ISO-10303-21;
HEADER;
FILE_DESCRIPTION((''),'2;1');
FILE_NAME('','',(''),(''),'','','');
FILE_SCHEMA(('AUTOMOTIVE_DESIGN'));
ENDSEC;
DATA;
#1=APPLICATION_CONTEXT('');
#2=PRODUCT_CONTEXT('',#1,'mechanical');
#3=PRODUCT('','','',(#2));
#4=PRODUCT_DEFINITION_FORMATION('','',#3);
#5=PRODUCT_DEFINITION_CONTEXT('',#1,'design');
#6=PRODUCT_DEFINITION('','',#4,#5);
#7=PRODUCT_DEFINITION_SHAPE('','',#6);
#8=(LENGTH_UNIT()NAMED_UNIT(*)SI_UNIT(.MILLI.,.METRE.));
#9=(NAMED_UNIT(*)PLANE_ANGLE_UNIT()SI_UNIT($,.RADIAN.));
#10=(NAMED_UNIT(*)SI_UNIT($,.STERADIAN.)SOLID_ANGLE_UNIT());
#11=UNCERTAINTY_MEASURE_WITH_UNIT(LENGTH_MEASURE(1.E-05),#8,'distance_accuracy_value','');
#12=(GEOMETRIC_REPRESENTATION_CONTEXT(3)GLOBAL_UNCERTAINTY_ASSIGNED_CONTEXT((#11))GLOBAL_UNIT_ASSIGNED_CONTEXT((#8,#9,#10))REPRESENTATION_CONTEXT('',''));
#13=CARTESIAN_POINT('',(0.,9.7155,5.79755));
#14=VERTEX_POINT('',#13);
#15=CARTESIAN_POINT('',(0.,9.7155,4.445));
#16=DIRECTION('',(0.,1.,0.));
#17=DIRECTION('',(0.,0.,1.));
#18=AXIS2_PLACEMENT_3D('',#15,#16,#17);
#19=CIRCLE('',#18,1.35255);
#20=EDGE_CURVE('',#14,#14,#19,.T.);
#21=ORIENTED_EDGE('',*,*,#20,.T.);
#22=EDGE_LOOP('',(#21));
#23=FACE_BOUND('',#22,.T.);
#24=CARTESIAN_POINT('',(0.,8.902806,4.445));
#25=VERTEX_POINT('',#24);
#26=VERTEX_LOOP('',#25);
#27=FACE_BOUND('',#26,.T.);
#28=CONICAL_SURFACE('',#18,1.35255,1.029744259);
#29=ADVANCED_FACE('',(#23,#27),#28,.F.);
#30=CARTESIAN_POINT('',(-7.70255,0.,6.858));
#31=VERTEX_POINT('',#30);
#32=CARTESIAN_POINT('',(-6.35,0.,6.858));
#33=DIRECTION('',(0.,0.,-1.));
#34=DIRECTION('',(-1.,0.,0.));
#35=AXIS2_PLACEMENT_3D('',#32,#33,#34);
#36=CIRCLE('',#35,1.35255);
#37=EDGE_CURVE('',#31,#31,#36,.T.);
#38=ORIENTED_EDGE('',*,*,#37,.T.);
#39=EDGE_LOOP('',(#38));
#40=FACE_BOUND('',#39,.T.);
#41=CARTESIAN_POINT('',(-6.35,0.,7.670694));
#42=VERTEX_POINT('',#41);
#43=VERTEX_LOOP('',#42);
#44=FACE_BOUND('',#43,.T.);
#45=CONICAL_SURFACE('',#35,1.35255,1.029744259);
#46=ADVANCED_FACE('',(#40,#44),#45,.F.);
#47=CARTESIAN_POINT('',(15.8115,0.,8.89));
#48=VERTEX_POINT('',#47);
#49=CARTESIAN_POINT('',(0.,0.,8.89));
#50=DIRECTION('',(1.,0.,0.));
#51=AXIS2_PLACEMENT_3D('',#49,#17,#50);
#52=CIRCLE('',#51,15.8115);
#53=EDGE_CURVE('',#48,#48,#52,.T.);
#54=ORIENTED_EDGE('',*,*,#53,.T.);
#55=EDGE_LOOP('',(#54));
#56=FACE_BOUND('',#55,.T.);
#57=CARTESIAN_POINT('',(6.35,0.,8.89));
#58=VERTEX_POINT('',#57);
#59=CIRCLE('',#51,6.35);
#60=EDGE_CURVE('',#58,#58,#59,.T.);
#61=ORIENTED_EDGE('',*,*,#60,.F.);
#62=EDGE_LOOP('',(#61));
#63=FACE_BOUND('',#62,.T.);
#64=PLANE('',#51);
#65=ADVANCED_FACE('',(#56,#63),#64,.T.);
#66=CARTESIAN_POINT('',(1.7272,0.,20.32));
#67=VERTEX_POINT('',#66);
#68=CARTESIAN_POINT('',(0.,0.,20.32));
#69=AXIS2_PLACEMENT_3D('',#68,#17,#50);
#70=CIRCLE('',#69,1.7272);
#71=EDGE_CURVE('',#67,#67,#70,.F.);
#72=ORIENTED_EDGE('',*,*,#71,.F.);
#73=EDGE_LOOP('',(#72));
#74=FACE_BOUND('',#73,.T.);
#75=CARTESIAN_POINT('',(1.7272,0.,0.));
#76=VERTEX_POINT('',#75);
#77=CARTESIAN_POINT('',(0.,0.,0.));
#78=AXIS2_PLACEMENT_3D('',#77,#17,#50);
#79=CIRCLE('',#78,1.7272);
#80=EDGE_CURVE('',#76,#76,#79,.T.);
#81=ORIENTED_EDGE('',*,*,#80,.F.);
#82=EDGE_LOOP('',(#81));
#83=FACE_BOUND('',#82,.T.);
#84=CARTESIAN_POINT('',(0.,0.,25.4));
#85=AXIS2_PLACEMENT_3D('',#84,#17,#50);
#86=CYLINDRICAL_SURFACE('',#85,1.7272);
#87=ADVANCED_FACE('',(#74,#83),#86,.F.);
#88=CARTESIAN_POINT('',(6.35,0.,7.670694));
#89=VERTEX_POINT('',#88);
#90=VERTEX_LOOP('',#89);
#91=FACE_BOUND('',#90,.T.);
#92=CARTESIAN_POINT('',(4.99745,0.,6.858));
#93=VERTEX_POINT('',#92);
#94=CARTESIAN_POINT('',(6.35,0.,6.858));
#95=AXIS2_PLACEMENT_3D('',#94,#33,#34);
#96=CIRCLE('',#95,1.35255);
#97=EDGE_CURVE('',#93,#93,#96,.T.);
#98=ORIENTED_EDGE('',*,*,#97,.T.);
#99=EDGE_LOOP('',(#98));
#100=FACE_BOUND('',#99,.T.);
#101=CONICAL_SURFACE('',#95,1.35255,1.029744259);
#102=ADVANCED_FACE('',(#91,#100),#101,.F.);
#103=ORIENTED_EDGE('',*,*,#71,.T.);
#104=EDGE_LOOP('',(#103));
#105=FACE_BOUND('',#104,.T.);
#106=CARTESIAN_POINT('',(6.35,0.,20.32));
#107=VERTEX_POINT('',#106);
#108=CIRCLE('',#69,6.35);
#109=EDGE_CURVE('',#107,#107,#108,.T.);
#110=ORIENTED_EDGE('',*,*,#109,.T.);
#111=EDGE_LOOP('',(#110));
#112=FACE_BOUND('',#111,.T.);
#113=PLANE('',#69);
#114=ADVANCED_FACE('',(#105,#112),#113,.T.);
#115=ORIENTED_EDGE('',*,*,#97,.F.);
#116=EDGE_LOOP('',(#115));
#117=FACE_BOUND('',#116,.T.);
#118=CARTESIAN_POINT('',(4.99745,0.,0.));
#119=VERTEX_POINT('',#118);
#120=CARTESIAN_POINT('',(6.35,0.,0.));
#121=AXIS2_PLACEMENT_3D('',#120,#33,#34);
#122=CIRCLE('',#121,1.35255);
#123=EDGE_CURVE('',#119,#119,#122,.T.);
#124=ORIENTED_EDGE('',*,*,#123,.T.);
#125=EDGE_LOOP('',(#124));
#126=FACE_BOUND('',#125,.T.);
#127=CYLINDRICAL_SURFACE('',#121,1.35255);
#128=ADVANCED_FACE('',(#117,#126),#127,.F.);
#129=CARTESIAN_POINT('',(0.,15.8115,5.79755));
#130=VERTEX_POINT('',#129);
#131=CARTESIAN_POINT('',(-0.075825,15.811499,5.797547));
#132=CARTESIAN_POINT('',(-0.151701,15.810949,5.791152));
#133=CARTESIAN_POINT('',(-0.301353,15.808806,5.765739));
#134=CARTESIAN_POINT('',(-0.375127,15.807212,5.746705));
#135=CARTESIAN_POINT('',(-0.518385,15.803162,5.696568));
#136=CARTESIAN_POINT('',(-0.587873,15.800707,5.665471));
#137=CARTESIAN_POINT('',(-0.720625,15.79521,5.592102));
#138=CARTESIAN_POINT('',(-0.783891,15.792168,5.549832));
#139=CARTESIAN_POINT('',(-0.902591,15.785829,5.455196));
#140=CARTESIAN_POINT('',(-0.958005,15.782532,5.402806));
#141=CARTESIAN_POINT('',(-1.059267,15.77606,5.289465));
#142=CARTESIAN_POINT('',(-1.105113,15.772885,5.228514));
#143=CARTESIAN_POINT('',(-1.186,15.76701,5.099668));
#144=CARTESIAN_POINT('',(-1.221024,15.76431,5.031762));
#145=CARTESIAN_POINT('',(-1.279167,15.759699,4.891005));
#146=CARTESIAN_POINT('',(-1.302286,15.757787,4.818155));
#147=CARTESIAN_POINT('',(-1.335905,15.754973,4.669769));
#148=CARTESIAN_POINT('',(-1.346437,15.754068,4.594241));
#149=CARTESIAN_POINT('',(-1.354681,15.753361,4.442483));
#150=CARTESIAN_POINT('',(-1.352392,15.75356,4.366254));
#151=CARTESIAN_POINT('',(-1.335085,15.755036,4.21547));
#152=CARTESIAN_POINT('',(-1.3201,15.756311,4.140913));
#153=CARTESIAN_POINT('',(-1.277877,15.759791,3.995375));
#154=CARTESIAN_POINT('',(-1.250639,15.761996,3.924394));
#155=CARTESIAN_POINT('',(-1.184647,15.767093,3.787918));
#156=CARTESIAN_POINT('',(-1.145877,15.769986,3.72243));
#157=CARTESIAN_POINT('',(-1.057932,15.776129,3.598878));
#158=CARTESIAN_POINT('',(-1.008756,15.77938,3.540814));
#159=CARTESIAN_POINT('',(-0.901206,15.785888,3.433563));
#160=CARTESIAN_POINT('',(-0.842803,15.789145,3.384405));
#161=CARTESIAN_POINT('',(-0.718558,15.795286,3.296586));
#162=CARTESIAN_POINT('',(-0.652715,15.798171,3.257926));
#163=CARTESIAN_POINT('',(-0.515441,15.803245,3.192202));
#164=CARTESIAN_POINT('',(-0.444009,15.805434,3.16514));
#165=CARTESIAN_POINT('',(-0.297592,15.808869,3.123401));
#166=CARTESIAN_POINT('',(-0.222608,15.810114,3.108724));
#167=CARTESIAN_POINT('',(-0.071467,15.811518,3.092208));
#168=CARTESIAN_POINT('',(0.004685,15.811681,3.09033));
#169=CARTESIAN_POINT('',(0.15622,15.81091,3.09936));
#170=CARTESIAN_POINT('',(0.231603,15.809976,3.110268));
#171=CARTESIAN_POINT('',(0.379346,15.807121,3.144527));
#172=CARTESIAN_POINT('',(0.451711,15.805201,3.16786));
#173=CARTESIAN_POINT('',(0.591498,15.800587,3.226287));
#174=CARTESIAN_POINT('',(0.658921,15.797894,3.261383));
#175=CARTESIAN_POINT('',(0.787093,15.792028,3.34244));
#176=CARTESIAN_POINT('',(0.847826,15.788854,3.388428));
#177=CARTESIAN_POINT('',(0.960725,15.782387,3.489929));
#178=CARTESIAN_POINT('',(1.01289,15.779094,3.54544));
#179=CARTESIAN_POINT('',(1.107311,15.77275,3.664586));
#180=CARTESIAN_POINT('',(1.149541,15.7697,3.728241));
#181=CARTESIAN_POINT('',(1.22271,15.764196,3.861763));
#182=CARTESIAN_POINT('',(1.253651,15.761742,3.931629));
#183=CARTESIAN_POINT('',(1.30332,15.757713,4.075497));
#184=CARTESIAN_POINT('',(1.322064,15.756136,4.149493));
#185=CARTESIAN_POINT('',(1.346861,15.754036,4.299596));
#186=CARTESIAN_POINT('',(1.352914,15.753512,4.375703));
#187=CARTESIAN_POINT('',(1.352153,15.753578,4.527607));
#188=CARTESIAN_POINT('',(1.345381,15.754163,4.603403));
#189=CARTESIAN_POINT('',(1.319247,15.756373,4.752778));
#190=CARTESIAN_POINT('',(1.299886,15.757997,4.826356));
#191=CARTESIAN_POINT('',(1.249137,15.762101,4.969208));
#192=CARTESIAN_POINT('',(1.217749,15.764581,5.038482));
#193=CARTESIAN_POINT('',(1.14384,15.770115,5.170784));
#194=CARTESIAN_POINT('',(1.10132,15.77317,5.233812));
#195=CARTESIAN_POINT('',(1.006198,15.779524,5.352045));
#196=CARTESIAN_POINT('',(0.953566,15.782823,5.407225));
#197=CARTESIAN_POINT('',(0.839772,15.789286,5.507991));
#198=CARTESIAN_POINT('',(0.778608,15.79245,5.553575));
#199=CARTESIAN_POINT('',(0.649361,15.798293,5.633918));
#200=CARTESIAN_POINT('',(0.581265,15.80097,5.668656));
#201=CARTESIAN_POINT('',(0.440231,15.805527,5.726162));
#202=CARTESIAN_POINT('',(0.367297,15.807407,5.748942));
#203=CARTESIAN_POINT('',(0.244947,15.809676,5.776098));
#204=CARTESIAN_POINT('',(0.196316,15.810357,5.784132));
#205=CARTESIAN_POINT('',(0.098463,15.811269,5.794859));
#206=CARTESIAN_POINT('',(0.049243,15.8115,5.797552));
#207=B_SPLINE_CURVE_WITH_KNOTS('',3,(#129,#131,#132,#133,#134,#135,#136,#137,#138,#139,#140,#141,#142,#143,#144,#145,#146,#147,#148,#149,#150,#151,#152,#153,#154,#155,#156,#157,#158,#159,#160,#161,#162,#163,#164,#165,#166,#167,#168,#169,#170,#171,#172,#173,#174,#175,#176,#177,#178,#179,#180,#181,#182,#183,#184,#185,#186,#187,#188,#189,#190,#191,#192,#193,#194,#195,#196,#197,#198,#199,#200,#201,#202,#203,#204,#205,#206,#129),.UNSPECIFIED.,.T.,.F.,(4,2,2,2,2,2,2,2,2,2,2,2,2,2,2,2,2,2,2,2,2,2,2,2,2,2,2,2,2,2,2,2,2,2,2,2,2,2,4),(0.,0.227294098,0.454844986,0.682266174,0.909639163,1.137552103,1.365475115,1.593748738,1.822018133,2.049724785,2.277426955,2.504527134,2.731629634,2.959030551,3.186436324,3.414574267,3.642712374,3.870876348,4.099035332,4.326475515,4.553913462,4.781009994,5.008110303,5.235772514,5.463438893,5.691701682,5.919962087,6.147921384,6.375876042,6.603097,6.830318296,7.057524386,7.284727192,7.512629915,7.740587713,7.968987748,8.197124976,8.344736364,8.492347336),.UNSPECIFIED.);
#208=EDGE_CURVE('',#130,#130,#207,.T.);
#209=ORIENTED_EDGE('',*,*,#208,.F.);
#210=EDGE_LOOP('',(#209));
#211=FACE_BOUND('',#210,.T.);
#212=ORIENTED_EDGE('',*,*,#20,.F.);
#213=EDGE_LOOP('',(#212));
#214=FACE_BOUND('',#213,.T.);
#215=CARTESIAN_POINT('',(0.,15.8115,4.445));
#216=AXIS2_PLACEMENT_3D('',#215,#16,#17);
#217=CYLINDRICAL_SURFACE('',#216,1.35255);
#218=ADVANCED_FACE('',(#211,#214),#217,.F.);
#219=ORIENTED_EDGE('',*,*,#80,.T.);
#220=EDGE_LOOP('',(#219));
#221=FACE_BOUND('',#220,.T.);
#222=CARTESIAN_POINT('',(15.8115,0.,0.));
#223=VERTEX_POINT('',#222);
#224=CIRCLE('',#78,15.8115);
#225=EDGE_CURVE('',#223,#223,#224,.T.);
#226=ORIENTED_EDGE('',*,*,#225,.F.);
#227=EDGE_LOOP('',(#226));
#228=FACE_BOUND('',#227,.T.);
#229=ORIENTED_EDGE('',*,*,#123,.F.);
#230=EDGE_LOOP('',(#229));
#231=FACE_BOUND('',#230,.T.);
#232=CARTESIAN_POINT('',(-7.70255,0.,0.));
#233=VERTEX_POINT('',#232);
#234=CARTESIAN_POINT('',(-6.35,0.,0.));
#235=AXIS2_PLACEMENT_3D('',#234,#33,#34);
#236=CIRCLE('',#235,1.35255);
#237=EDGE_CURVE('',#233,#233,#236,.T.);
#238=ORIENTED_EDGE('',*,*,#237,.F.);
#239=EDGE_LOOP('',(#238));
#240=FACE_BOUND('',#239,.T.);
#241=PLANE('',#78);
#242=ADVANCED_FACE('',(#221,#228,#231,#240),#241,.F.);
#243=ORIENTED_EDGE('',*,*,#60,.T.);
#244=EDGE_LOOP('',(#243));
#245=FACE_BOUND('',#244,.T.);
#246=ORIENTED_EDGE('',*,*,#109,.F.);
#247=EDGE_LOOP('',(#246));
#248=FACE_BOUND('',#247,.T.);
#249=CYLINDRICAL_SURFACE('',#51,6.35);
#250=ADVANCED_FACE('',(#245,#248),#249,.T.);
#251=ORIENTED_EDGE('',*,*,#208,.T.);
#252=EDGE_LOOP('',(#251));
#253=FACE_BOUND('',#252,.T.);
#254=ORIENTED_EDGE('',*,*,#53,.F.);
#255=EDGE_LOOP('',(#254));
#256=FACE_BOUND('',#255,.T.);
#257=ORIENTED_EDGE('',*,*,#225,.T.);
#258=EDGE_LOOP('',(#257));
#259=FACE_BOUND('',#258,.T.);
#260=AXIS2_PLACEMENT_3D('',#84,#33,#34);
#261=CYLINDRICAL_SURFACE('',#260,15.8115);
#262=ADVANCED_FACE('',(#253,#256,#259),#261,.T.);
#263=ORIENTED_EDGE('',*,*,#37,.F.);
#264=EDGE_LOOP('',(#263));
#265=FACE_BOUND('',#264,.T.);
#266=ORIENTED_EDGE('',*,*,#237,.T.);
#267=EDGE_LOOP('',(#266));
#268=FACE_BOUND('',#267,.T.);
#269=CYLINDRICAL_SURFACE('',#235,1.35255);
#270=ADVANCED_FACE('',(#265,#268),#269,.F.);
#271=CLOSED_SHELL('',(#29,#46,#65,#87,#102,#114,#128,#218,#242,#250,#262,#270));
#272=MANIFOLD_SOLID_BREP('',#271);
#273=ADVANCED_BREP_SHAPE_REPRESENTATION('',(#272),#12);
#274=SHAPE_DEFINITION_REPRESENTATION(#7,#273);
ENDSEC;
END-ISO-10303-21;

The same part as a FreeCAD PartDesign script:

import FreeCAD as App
import Part
import Sketcher

V = App.Vector
Q = App.Units.Quantity

doc = App.newDocument("Part")
body = doc.addObject("PartDesign::Body", "Body")

# Sketch on XY plane
sketch1 = doc.addObject("Sketcher::SketchObject", "Sketch")
body.addObject(sketch1)
sketch1.AttachmentSupport = (doc.XY_Plane, [""])
sketch1.MapMode = "FlatFace"
sketch1.addGeometry(Part.Circle(V(0, 0, 0), V(0, 0, 1), 16), False)
sketch1.addConstraint(Sketcher.Constraint("Coincident", 0, 3, -1, 1))
sketch1.addConstraint(Sketcher.Constraint("Diameter", 0, Q("1.245 in")))
pad1 = doc.addObject("PartDesign::Pad", "Pad")
body.addObject(pad1)
pad1.Profile = sketch1
pad1.Length = Q("1 in")

# Sketch on XY plane
sketch2 = doc.addObject("Sketcher::SketchObject", "Sketch001")
body.addObject(sketch2)
sketch2.AttachmentSupport = (doc.XY_Plane, [""])
sketch2.MapMode = "FlatFace"
sketch2.AttachmentOffset = App.Placement(V(0, 0, 1 * 25.4), App.Rotation())
sketch2.addGeometry(Part.LineSegment(V(-22, 22, 0), V(-22, -22, 0)), False)
sketch2.addGeometry(Part.LineSegment(V(-22, -22, 0), V(22, -22, 0)), False)
sketch2.addGeometry(Part.LineSegment(V(22, -22, 0), V(22, 22, 0)), False)
sketch2.addGeometry(Part.LineSegment(V(22, 22, 0), V(-22, 22, 0)), False)
sketch2.addGeometry(Part.Circle(V(0, 0, 0), V(0, 0, 1), 6), False)
sketch2.addConstraint(Sketcher.Constraint("Coincident", 0, 2, 1, 1))
sketch2.addConstraint(Sketcher.Constraint("Coincident", 1, 2, 2, 1))
sketch2.addConstraint(Sketcher.Constraint("Coincident", 2, 2, 3, 1))
sketch2.addConstraint(Sketcher.Constraint("Coincident", 3, 2, 0, 1))
sketch2.addConstraint(Sketcher.Constraint("Vertical", 0))
sketch2.addConstraint(Sketcher.Constraint("Horizontal", 1))
sketch2.addConstraint(Sketcher.Constraint("Vertical", 2))
sketch2.addConstraint(Sketcher.Constraint("Horizontal", 3))
sketch2.addConstraint(Sketcher.Constraint("Coincident", 4, 3, -1, 1))
sketch2.addConstraint(Sketcher.Constraint("Symmetric", 0, 2, 2, 2, -1, 1))
sketch2.addConstraint(Sketcher.Constraint("Equal", 3, 0))
sketch2.addConstraint(Sketcher.Constraint("Diameter", 4, Q("0.5 in")))
sketch2.addConstraint(Sketcher.Constraint("DistanceX", 1, 1, 1, 2, Q("43.91 mm")))
pocket1 = doc.addObject("PartDesign::Pocket", "Pocket")
body.addObject(pocket1)
pocket1.Profile = sketch2
pocket1.Length = Q("0.65 in")

# Sketch on XY plane
sketch3 = doc.addObject("Sketcher::SketchObject", "Sketch002")
body.addObject(sketch3)
sketch3.AttachmentSupport = (doc.XY_Plane, [""])
sketch3.MapMode = "FlatFace"
sketch3.AttachmentOffset = App.Placement(V(0, 0, 1 * 25.4), App.Rotation())
sketch3.addGeometry(Part.Circle(V(0, 0, 0), V(0, 0, 1), 1.7), False)
sketch3.addConstraint(Sketcher.Constraint("Coincident", 0, 3, -1, 1))
sketch3.addConstraint(Sketcher.Constraint("Diameter", 0, Q("0.136 in")))
doc.recompute()
hole = doc.addObject("PartDesign::Hole", "Hole")
body.addObject(hole)
hole.Profile = sketch3
hole.ThreadType = "None"
hole.Diameter = Q("0.136 in")
hole.DepthType = "ThroughAll"

# Sketch on XY plane
sketch4 = doc.addObject("Sketcher::SketchObject", "Sketch003")
body.addObject(sketch4)
sketch4.AttachmentSupport = (doc.XY_Plane, [""])
sketch4.MapMode = "FlatFace"
sketch4.addGeometry(Part.Circle(V(6.3, 0, 0), V(0, 0, 1), 1.4), False)
sketch4.addGeometry(Part.Circle(V(-6.3, 0, 0), V(0, 0, 1), 1.4), False)
sketch4.addConstraint(Sketcher.Constraint("Equal", 0, 1))
sketch4.addConstraint(Sketcher.Constraint("Symmetric", 0, 3, 1, 3, -1, 1))
sketch4.addConstraint(Sketcher.Constraint("PointOnObject", 0, 3, -1))
sketch4.addConstraint(Sketcher.Constraint("Diameter", 0, Q("0.1065 in")))
sketch4.addConstraint(Sketcher.Constraint("DistanceX", 1, 3, 0, 3, Q("0.5 in")))
doc.recompute()
hole2 = doc.addObject("PartDesign::Hole", "Hole001")
body.addObject(hole2)
hole2.Profile = sketch4
hole2.ThreadType = "None"
hole2.Diameter = Q("0.1065 in")
hole2.DepthType = "Dimension"
hole2.Depth = Q("0.27 in")
hole2.DrillPoint = "Angled"
hole2.DrillPointAngle = 118
hole2.Reversed = True

# Sketch on XZ plane
sketch5 = doc.addObject("Sketcher::SketchObject", "Sketch004")
body.addObject(sketch5)
sketch5.AttachmentSupport = (doc.XZ_Plane, [""])
sketch5.MapMode = "FlatFace"
sketch5.AttachmentOffset = App.Placement(V(0, 0, -0.6225 * 25.4), App.Rotation())
sketch5.addGeometry(Part.Circle(V(0, 4.4, 0), V(0, 0, 1), 1.4), False)
sketch5.addConstraint(Sketcher.Constraint("PointOnObject", 0, 3, -2))
sketch5.addConstraint(Sketcher.Constraint("Diameter", 0, Q("0.1065 in")))
sketch5.addConstraint(Sketcher.Constraint("DistanceY", -1, 1, 0, 3, Q("0.175 in")))
doc.recompute()
hole3 = doc.addObject("PartDesign::Hole", "Hole002")
body.addObject(hole3)
hole3.Profile = sketch5
hole3.ThreadType = "None"
hole3.Diameter = Q("0.1065 in")
hole3.DepthType = "Dimension"
hole3.Depth = Q("0.24 in")
hole3.DrillPoint = "Angled"
hole3.DrillPointAngle = 118
hole3.Reversed = True

# Sketch on XY plane
sketch6 = doc.addObject("Sketcher::SketchObject", "Sketch005")
body.addObject(sketch6)
sketch6.AttachmentSupport = (doc.XY_Plane, [""])
sketch6.MapMode = "FlatFace"
sketch6.AttachmentOffset = App.Placement(V(0, 0, 1 * 25.4), App.Rotation())
sketch6.addGeometry(Part.Circle(V(0, 0, 0), V(0, 0, 1), 6), False)
sketch6.addConstraint(Sketcher.Constraint("Coincident", 0, 3, -1, 1))
sketch6.addConstraint(Sketcher.Constraint("Diameter", 0, Q("0.5 in")))
pocket2 = doc.addObject("PartDesign::Pocket", "Pocket001")
body.addObject(pocket2)
pocket2.Profile = sketch6
pocket2.Length = Q("0.2 in")

doc.recompute()
